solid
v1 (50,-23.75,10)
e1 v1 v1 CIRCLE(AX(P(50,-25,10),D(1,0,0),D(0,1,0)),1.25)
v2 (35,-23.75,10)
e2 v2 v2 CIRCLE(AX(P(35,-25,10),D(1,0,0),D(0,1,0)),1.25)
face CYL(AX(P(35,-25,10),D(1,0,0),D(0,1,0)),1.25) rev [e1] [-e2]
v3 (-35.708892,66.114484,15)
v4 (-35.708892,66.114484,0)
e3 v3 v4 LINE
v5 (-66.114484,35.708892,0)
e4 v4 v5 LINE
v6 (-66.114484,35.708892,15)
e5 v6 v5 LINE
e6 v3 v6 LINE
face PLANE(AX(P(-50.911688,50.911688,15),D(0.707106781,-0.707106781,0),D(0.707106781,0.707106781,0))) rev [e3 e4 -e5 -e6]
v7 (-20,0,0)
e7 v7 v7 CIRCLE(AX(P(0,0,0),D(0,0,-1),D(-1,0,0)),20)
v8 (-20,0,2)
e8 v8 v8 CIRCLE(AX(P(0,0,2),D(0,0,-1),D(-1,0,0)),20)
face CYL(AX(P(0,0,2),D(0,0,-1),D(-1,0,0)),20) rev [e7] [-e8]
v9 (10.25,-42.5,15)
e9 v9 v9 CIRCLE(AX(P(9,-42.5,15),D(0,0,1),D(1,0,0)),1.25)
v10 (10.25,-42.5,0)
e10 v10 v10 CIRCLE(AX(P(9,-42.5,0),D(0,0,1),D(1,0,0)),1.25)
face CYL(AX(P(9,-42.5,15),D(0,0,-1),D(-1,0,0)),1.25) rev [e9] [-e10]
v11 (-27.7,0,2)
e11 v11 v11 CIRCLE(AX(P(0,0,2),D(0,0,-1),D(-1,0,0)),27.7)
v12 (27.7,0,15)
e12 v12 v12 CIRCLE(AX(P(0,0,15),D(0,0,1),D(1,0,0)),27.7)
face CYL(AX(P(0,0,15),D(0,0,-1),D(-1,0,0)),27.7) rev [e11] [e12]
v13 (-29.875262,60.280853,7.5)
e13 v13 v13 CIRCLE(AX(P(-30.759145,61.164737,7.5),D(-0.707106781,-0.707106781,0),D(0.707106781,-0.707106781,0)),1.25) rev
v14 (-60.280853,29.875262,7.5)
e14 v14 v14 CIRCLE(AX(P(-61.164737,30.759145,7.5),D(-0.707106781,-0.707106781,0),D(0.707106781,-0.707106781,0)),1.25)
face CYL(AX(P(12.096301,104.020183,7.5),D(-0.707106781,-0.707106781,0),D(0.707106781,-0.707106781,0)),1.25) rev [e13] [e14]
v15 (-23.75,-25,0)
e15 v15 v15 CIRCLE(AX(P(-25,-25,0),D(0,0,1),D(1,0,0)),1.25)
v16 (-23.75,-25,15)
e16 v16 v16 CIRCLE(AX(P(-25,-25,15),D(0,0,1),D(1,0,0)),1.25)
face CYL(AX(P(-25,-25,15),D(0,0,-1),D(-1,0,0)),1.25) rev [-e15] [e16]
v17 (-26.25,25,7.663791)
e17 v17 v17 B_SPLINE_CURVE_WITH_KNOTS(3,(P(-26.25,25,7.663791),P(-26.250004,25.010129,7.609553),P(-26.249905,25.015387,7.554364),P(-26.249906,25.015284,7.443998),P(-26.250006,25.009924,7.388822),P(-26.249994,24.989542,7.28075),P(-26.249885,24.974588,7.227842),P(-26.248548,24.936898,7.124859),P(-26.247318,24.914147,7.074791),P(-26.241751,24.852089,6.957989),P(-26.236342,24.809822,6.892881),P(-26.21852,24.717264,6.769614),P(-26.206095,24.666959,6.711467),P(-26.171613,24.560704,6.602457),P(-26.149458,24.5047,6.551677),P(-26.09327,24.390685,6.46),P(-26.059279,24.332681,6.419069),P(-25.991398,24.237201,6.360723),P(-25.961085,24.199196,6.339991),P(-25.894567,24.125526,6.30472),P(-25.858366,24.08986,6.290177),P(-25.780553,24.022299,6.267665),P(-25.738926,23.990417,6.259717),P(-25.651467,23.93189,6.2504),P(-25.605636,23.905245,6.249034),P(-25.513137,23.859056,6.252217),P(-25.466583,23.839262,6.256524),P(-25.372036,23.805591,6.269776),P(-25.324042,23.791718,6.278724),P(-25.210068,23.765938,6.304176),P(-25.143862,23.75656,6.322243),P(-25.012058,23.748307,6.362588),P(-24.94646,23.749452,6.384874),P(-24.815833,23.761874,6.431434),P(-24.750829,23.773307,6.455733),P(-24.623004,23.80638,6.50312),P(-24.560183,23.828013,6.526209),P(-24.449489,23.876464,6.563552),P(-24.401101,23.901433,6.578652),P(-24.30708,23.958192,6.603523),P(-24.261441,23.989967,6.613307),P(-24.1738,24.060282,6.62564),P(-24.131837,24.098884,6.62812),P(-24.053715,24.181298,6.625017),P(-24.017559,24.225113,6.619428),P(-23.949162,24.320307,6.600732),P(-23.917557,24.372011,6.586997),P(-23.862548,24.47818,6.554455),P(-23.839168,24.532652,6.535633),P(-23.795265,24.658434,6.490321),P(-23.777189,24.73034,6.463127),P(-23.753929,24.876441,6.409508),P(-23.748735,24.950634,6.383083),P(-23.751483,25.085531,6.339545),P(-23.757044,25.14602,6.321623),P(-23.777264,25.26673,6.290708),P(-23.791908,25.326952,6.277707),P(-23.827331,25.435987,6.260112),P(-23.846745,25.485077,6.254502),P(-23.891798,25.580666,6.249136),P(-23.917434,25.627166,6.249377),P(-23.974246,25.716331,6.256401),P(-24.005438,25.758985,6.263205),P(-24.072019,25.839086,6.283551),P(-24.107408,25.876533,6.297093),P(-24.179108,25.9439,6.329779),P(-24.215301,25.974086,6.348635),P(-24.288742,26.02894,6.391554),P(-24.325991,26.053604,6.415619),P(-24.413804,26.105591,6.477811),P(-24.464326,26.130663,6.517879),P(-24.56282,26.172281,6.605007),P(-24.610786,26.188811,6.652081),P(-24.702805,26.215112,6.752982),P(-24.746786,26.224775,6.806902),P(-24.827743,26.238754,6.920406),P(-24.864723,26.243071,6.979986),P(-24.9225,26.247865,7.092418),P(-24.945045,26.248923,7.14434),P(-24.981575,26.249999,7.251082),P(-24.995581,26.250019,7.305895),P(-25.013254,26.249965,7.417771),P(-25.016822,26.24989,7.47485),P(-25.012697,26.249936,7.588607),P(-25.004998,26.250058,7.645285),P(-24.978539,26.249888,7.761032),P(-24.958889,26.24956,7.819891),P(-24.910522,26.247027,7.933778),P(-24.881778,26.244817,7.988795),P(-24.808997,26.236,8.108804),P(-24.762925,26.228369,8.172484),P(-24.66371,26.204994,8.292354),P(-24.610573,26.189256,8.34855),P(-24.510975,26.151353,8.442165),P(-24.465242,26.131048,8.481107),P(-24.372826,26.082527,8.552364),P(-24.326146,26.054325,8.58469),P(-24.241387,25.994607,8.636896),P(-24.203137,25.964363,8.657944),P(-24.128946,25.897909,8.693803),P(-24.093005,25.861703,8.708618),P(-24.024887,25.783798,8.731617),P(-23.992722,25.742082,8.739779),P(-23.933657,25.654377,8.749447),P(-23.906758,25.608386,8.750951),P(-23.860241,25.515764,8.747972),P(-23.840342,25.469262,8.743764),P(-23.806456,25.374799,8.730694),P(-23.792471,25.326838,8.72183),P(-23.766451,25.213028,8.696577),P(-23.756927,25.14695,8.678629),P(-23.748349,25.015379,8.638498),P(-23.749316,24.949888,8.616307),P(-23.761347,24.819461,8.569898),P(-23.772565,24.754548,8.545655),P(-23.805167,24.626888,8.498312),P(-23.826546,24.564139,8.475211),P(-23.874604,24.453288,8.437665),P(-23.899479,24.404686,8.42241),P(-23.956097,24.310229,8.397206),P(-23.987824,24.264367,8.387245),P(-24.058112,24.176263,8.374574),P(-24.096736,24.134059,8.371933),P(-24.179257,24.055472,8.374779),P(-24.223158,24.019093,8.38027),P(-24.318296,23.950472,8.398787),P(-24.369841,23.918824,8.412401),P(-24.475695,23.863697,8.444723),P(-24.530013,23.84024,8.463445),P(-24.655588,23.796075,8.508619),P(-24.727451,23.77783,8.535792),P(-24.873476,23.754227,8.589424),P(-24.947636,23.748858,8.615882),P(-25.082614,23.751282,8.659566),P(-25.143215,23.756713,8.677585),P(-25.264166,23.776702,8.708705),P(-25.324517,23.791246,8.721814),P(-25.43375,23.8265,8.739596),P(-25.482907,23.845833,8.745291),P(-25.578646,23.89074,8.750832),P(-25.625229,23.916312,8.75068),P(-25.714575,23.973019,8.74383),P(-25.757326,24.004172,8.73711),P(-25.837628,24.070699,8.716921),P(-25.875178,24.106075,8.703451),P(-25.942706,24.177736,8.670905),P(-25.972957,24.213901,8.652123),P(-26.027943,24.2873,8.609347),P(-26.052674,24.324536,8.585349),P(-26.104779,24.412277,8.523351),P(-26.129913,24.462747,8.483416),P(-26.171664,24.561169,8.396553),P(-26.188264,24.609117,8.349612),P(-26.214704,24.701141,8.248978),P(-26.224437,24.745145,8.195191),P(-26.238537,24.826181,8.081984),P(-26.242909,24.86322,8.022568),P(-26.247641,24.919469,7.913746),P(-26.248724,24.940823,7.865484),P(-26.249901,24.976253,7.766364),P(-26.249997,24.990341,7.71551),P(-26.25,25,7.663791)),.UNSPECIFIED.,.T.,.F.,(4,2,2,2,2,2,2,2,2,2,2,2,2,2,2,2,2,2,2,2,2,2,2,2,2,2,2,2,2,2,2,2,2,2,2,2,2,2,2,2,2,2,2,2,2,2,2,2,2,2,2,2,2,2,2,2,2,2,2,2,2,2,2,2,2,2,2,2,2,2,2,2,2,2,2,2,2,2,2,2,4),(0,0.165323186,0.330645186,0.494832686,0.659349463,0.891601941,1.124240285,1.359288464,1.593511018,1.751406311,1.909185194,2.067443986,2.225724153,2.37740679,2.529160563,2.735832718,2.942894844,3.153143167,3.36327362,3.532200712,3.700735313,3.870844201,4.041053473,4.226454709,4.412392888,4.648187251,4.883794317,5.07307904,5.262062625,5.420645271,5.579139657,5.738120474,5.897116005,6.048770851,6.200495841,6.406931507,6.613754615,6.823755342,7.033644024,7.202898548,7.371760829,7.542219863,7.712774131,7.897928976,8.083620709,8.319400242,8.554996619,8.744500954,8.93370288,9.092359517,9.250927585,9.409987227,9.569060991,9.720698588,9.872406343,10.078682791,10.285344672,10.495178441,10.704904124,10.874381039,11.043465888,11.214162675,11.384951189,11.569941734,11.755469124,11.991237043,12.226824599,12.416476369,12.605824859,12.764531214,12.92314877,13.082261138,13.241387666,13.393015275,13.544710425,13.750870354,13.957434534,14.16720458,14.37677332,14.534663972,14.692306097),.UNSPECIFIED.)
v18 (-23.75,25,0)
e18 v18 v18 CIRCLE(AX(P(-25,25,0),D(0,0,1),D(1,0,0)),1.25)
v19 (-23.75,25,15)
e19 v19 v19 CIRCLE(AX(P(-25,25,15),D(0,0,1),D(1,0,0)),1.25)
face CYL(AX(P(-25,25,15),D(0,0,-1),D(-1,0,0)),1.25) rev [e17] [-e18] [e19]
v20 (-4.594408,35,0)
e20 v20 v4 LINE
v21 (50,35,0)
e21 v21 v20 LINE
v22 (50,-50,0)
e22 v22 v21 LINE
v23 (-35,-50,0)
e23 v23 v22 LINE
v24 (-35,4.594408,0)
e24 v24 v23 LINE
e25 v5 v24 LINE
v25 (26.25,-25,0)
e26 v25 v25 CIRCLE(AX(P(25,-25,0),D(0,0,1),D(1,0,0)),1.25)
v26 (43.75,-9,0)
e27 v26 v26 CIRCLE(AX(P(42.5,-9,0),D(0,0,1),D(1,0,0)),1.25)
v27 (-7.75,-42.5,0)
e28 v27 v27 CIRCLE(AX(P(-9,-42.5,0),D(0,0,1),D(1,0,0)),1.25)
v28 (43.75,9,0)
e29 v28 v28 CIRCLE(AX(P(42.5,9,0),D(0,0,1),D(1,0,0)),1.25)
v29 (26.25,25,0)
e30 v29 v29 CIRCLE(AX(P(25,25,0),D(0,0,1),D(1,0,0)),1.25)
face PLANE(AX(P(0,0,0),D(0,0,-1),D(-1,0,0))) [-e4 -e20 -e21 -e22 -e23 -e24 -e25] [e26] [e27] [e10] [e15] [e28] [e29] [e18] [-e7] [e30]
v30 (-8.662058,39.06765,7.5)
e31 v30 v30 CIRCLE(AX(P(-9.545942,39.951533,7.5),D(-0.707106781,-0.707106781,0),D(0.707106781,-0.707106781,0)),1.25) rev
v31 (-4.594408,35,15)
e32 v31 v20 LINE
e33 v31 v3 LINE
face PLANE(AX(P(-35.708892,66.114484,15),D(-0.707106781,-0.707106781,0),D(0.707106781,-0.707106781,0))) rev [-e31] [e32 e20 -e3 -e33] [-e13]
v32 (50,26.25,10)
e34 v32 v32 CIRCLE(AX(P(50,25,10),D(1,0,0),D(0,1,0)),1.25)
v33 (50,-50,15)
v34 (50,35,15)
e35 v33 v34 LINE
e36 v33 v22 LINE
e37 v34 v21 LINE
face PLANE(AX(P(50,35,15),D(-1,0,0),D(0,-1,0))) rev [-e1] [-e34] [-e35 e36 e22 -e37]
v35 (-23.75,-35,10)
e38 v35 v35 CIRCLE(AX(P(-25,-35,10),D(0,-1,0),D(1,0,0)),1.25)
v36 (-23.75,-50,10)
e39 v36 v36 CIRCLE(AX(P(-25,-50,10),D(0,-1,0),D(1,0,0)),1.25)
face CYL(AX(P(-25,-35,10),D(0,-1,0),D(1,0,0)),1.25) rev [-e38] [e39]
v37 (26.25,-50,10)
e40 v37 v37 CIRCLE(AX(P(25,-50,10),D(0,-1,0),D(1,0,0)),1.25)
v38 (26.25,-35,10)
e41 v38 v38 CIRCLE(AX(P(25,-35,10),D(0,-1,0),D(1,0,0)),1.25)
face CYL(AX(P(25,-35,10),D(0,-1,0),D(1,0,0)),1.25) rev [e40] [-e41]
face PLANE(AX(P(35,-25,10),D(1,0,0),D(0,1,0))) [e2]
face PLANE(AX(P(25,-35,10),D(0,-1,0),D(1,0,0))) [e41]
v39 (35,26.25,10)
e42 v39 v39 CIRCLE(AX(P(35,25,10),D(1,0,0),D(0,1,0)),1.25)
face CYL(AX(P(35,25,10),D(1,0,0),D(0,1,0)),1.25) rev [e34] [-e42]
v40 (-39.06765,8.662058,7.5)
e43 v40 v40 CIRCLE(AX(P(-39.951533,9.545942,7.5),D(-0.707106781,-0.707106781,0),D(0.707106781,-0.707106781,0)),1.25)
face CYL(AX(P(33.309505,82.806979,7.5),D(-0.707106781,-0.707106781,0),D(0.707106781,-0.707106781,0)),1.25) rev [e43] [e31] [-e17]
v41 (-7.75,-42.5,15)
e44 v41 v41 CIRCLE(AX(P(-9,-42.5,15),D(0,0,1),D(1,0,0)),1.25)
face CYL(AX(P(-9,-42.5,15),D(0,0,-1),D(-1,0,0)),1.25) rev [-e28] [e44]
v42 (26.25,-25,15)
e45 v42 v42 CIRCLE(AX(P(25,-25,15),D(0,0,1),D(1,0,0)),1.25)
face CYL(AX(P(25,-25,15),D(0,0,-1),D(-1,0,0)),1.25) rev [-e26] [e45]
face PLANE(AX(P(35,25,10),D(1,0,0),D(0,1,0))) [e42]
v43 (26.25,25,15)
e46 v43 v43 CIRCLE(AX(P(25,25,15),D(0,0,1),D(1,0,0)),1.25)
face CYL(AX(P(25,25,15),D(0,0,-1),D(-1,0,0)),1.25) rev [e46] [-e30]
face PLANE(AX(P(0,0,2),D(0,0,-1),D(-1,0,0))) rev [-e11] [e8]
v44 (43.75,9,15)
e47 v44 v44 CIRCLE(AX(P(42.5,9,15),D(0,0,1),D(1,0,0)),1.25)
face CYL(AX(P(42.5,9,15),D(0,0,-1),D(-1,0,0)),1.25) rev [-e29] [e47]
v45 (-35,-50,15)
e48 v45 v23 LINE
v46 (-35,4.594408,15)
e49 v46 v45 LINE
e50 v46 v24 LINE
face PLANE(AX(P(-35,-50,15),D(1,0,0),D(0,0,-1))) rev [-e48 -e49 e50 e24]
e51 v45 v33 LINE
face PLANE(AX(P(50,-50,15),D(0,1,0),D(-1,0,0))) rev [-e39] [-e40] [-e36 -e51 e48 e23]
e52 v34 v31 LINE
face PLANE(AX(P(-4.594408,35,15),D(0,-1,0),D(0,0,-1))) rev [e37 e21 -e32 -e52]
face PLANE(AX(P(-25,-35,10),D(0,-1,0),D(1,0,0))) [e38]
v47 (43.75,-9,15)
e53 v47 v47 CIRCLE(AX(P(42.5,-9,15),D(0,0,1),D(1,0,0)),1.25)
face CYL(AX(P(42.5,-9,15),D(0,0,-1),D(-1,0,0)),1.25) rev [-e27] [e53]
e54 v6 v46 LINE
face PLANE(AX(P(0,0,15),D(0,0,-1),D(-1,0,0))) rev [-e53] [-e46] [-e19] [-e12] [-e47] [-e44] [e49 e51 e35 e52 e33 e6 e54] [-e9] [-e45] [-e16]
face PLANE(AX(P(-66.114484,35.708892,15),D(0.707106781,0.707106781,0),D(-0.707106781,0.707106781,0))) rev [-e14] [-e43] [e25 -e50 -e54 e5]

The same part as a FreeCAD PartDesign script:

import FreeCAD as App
import Part
import Sketcher
from FreeCAD import Vector
Q = App.Units.Quantity


def add_polygon(sketch, points):
    """Adds a closed chain of lines whose ends are joined by coincident constraints."""
    first, n = sketch.GeometryCount, len(points)
    for a, b in zip(points, points[1:] + points[:1]):
        sketch.addGeometry(Part.LineSegment(App.Vector(*a, 0), App.Vector(*b, 0)), False)
    for i in range(n):
        sketch.addConstraint(Sketcher.Constraint("Coincident", first + i, 2, first + (i + 1) % n, 1))

doc = App.newDocument("Part")
params = doc.addObject("Spreadsheet::Sheet", "Params")
for row, (alias, value) in enumerate([
    ("sketch1_diameter", "2.5 mm"),
    ("sketch1_diameter2", "55.4 mm"),
    ("sketch1_width", "85 mm"),
    ("sketch1_length", "21.5 mm"),
    ("pad1_length", "15 mm"),
    ("sketch2_diameter", "2.5 mm"),
    ("sketch3_diameter", "2.5 mm"),
    ("pocket2_length", "43 mm"),
    ("sketch4_diameter", "40 mm"),
    ("sketch4_diameter2", "55.4 mm"),
    ("pad2_length", "2 mm"),
    ("sketch5_diameter", "2.5 mm"),
    ("pocket3_length", "15 mm"),
    ("sketch6_diameter", "2.5 mm"),
    ("pocket4_length", "15 mm"),
], start=1):
    params.set(f"A{row}", alias)
    params.set(f"B{row}", "=" + value)
    params.setAlias(f"B{row}", alias)

body = doc.addObject("PartDesign::Body", "Body")

# Sketch on XY plane
sketch1 = body.newObject("Sketcher::SketchObject", "Sketch")
sketch1.AttachmentSupport = (doc.getObject("XY_Plane"), [""])
sketch1.MapMode = "FlatFace"
add_polygon(sketch1, [(50, -50), (50, 35), (-4.6, 35), (-35.7, 66.1), (-50.9, 50.9), (-66.1, 35.7), (-35, 4.6), (-35, -50)])  # lines 0-7
sketch1.addGeometry(Part.Circle(Vector(9, -42.5, 0), Vector(0, 0, 1), 1.2), False)  # 8
sketch1.addGeometry(Part.Circle(Vector(42.5, -9, 0), Vector(0, 0, 1), 1.2), False)  # 9
sketch1.addGeometry(Part.Circle(Vector(25, -25, 0), Vector(0, 0, 1), 1.2), False)  # 10
sketch1.addGeometry(Part.Circle(Vector(-9, -42.5, 0), Vector(0, 0, 1), 1.2), False)  # 11
sketch1.addGeometry(Part.Circle(Vector(-25, -25, 0), Vector(0, 0, 1), 1.2), False)  # 12
sketch1.addGeometry(Part.Circle(Vector(42.5, 9, 0), Vector(0, 0, 1), 1.2), False)  # 13
sketch1.addGeometry(Part.Circle(Vector(25, 25, 0), Vector(0, 0, 1), 1.2), False)  # 14
sketch1.addGeometry(Part.Circle(Vector(0, 0, 0), Vector(0, 0, 1), 27.7), False)  # 15
sketch1.addGeometry(Part.Circle(Vector(-25, 25, 0), Vector(0, 0, 1), 1.2), False)  # 16
sketch1.addConstraint([
    Sketcher.Constraint("Vertical", 0),
    Sketcher.Constraint("Horizontal", 1),
    Sketcher.Constraint("Vertical", 6),
    Sketcher.Constraint("Horizontal", 7),
    Sketcher.Constraint("Coincident", 15, 3, -1, 1),
    Sketcher.Constraint("Equal", 8, 9),
    Sketcher.Constraint("Equal", 9, 10),
    Sketcher.Constraint("Equal", 10, 11),
    Sketcher.Constraint("Equal", 11, 12),
    Sketcher.Constraint("Equal", 12, 13),
    Sketcher.Constraint("Equal", 13, 14),
    Sketcher.Constraint("Equal", 14, 16),
    Sketcher.Constraint("Symmetric", 12, 3, 14, 3, -1, 1),
    Sketcher.Constraint("Symmetric", 10, 3, 16, 3, -1, 1),
    Sketcher.Constraint("Symmetric", 8, 3, 11, 3, -2),
    Sketcher.Constraint("Symmetric", 10, 3, 12, 3, -2),
    Sketcher.Constraint("Symmetric", 9, 3, 13, 3, -1),
    Sketcher.Constraint("Perpendicular", 2, 3),
    Sketcher.Constraint("Parallel", 3, 4),
    Sketcher.Constraint("Perpendicular", 4, 5),
    Sketcher.Constraint("Equal", 7, 0),
    Sketcher.Constraint("Equal", 1, 6),
    Sketcher.Constraint("Equal", 3, 4),
    Sketcher.Constraint("Equal", 2, 5),
    Sketcher.Constraint("Diameter", 8, Q("2.5 mm")),
    Sketcher.Constraint("Diameter", 15, Q("55.4 mm")),
    Sketcher.Constraint("DistanceX", 7, 1, 7, 2, Q("85 mm")),
    Sketcher.Constraint("DistanceX", -1, 1, 8, 3, Q("9 mm")),
    Sketcher.Constraint("DistanceY", 9, 3, -1, 1, Q("9 mm")),
    Sketcher.Constraint("DistanceX", -1, 1, 10, 3, Q("25 mm")),
    Sketcher.Constraint("DistanceY", 10, 3, -1, 1, Q("25 mm")),
    Sketcher.Constraint("DistanceX", -1, 1, 0, 2, Q("50 mm")),
    Sketcher.Constraint("DistanceY", -1, 1, 0, 2, Q("35 mm")),
    Sketcher.Constraint("Distance", 3, Q("21.5 mm")),
    Sketcher.Constraint("DistanceY", 8, 3, -1, 1, Q("42.5 mm")),
    Sketcher.Constraint("DistanceX", -1, 1, 9, 3, Q("42.5 mm")),
    Sketcher.Constraint("DistanceX", 3, 2, -1, 1, Q("50.911688 mm")),
])
sketch1.setExpression("Constraints[32]", "Params.sketch1_diameter")
sketch1.setExpression("Constraints[33]", "Params.sketch1_diameter2")
sketch1.setExpression("Constraints[34]", "Params.sketch1_width")
sketch1.setExpression("Constraints[41]", "Params.sketch1_length")
pad1 = body.newObject("PartDesign::Pad", "Pad")
pad1.Profile = sketch1
pad1.setExpression("Length", "Params.pad1_length")

# Sketch on an angled plane
sketch2 = body.newObject("Sketcher::SketchObject", "Sketch001")
sketch2.Placement = App.Placement(Vector(-15.202796, -15.202796, 0), App.Rotation(Vector(0, 0, 1), Vector(-0.707106781, 0.707106781, 0), Vector(-0.707106781, -0.707106781, 0), "ZXY"))
sketch2.addGeometry(Part.Circle(Vector(7.5, 65, 0), Vector(0, 0, 1), 1.2), False)
sketch2.addConstraint([
    Sketcher.Constraint("Diameter", 0, Q("2.5 mm")),
    Sketcher.Constraint("DistanceY", -1, 1, 0, 3, Q("65 mm")),
    Sketcher.Constraint("DistanceX", -1, 1, 0, 3, Q("7.5 mm")),
])
sketch2.setExpression("Constraints[0]", "Params.sketch2_diameter")
pocket1 = body.newObject("PartDesign::Pocket", "Pocket")
pocket1.Profile = sketch2
pocket1.Type = "UpToFirst"

# Sketch on an angled plane
sketch3 = body.newObject("Sketcher::SketchObject", "Sketch002")
sketch3.Placement = App.Placement(Vector(-15.202796, -15.202796, 0), App.Rotation(Vector(0, 0, 1), Vector(-0.707106781, 0.707106781, 0), Vector(-0.707106781, -0.707106781, 0), "ZXY"))
sketch3.addGeometry(Part.Circle(Vector(7.5, 35, 0), Vector(0, 0, 1), 1.2), False)
sketch3.addConstraint([
    Sketcher.Constraint("Diameter", 0, Q("2.5 mm")),
    Sketcher.Constraint("DistanceY", -1, 1, 0, 3, Q("35 mm")),
    Sketcher.Constraint("DistanceX", -1, 1, 0, 3, Q("7.5 mm")),
])
sketch3.setExpression("Constraints[0]", "Params.sketch3_diameter")
pocket2 = body.newObject("PartDesign::Pocket", "Pocket001")
pocket2.Profile = sketch3
pocket2.setExpression("Length", "Params.pocket2_length")

# Sketch on XY plane
sketch4 = body.newObject("Sketcher::SketchObject", "Sketch003")
sketch4.AttachmentSupport = (doc.getObject("XY_Plane"), [""])
sketch4.MapMode = "FlatFace"
sketch4.addGeometry([
    Part.Circle(Vector(0, 0, 0), Vector(0, 0, 1), 28),
    Part.Circle(Vector(0, 0, 0), Vector(0, 0, 1), 20),
], False)
sketch4.addConstraint([
    Sketcher.Constraint("Coincident", 0, 3, -1, 1),
    Sketcher.Constraint("Coincident", 1, 3, -1, 1),
    Sketcher.Constraint("Diameter", 1, Q("40 mm")),
    Sketcher.Constraint("Diameter", 0, Q("55.4 mm")),
])
sketch4.setExpression("Constraints[2]", "Params.sketch4_diameter")
sketch4.setExpression("Constraints[3]", "Params.sketch4_diameter2")
pad2 = body.newObject("PartDesign::Pad", "Pad001")
pad2.Profile = sketch4
pad2.setExpression("Length", "Params.pad2_length")

# Sketch on XZ plane
sketch5 = body.newObject("Sketcher::SketchObject", "Sketch004")
sketch5.AttachmentSupport = (doc.getObject("XZ_Plane"), [""])
sketch5.MapMode = "FlatFace"
sketch5.AttachmentOffset = App.Placement(Vector(0, 0, 50), App.Rotation())
sketch5.addGeometry([
    Part.Circle(Vector(25, 10, 0), Vector(0, 0, 1), 1.2),
    Part.Circle(Vector(-25, 10, 0), Vector(0, 0, 1), 1.2),
], False)
sketch5.addConstraint([
    Sketcher.Constraint("Equal", 0, 1),
    Sketcher.Constraint("Symmetric", 0, 3, 1, 3, -2),
    Sketcher.Constraint("Diameter", 0, Q("2.5 mm")),
    Sketcher.Constraint("DistanceX", -1, 1, 0, 3, Q("25 mm")),
    Sketcher.Constraint("DistanceY", -1, 1, 0, 3, Q("10 mm")),
])
sketch5.setExpression("Constraints[2]", "Params.sketch5_diameter")
pocket3 = body.newObject("PartDesign::Pocket", "Pocket002")
pocket3.Profile = sketch5
pocket3.setExpression("Length", "Params.pocket3_length")

# Sketch on YZ plane
sketch6 = body.newObject("Sketcher::SketchObject", "Sketch005")
sketch6.AttachmentSupport = (doc.getObject("YZ_Plane"), [""])
sketch6.MapMode = "FlatFace"
sketch6.AttachmentOffset = App.Placement(Vector(0, 0, 50), App.Rotation())
sketch6.addGeometry([
    Part.Circle(Vector(-25, 10, 0), Vector(0, 0, 1), 1.2),
    Part.Circle(Vector(25, 10, 0), Vector(0, 0, 1), 1.2),
], False)
sketch6.addConstraint([
    Sketcher.Constraint("Equal", 0, 1),
    Sketcher.Constraint("Symmetric", 0, 3, 1, 3, -2),
    Sketcher.Constraint("Diameter", 0, Q("2.5 mm")),
    Sketcher.Constraint("DistanceX", 0, 3, -1, 1, Q("25 mm")),
    Sketcher.Constraint("DistanceY", -1, 1, 0, 3, Q("10 mm")),
])
sketch6.setExpression("Constraints[2]", "Params.sketch6_diameter")
pocket4 = body.newObject("PartDesign::Pocket", "Pocket003")
pocket4.Profile = sketch6
pocket4.setExpression("Length", "Params.pocket4_length")

doc.recompute()
